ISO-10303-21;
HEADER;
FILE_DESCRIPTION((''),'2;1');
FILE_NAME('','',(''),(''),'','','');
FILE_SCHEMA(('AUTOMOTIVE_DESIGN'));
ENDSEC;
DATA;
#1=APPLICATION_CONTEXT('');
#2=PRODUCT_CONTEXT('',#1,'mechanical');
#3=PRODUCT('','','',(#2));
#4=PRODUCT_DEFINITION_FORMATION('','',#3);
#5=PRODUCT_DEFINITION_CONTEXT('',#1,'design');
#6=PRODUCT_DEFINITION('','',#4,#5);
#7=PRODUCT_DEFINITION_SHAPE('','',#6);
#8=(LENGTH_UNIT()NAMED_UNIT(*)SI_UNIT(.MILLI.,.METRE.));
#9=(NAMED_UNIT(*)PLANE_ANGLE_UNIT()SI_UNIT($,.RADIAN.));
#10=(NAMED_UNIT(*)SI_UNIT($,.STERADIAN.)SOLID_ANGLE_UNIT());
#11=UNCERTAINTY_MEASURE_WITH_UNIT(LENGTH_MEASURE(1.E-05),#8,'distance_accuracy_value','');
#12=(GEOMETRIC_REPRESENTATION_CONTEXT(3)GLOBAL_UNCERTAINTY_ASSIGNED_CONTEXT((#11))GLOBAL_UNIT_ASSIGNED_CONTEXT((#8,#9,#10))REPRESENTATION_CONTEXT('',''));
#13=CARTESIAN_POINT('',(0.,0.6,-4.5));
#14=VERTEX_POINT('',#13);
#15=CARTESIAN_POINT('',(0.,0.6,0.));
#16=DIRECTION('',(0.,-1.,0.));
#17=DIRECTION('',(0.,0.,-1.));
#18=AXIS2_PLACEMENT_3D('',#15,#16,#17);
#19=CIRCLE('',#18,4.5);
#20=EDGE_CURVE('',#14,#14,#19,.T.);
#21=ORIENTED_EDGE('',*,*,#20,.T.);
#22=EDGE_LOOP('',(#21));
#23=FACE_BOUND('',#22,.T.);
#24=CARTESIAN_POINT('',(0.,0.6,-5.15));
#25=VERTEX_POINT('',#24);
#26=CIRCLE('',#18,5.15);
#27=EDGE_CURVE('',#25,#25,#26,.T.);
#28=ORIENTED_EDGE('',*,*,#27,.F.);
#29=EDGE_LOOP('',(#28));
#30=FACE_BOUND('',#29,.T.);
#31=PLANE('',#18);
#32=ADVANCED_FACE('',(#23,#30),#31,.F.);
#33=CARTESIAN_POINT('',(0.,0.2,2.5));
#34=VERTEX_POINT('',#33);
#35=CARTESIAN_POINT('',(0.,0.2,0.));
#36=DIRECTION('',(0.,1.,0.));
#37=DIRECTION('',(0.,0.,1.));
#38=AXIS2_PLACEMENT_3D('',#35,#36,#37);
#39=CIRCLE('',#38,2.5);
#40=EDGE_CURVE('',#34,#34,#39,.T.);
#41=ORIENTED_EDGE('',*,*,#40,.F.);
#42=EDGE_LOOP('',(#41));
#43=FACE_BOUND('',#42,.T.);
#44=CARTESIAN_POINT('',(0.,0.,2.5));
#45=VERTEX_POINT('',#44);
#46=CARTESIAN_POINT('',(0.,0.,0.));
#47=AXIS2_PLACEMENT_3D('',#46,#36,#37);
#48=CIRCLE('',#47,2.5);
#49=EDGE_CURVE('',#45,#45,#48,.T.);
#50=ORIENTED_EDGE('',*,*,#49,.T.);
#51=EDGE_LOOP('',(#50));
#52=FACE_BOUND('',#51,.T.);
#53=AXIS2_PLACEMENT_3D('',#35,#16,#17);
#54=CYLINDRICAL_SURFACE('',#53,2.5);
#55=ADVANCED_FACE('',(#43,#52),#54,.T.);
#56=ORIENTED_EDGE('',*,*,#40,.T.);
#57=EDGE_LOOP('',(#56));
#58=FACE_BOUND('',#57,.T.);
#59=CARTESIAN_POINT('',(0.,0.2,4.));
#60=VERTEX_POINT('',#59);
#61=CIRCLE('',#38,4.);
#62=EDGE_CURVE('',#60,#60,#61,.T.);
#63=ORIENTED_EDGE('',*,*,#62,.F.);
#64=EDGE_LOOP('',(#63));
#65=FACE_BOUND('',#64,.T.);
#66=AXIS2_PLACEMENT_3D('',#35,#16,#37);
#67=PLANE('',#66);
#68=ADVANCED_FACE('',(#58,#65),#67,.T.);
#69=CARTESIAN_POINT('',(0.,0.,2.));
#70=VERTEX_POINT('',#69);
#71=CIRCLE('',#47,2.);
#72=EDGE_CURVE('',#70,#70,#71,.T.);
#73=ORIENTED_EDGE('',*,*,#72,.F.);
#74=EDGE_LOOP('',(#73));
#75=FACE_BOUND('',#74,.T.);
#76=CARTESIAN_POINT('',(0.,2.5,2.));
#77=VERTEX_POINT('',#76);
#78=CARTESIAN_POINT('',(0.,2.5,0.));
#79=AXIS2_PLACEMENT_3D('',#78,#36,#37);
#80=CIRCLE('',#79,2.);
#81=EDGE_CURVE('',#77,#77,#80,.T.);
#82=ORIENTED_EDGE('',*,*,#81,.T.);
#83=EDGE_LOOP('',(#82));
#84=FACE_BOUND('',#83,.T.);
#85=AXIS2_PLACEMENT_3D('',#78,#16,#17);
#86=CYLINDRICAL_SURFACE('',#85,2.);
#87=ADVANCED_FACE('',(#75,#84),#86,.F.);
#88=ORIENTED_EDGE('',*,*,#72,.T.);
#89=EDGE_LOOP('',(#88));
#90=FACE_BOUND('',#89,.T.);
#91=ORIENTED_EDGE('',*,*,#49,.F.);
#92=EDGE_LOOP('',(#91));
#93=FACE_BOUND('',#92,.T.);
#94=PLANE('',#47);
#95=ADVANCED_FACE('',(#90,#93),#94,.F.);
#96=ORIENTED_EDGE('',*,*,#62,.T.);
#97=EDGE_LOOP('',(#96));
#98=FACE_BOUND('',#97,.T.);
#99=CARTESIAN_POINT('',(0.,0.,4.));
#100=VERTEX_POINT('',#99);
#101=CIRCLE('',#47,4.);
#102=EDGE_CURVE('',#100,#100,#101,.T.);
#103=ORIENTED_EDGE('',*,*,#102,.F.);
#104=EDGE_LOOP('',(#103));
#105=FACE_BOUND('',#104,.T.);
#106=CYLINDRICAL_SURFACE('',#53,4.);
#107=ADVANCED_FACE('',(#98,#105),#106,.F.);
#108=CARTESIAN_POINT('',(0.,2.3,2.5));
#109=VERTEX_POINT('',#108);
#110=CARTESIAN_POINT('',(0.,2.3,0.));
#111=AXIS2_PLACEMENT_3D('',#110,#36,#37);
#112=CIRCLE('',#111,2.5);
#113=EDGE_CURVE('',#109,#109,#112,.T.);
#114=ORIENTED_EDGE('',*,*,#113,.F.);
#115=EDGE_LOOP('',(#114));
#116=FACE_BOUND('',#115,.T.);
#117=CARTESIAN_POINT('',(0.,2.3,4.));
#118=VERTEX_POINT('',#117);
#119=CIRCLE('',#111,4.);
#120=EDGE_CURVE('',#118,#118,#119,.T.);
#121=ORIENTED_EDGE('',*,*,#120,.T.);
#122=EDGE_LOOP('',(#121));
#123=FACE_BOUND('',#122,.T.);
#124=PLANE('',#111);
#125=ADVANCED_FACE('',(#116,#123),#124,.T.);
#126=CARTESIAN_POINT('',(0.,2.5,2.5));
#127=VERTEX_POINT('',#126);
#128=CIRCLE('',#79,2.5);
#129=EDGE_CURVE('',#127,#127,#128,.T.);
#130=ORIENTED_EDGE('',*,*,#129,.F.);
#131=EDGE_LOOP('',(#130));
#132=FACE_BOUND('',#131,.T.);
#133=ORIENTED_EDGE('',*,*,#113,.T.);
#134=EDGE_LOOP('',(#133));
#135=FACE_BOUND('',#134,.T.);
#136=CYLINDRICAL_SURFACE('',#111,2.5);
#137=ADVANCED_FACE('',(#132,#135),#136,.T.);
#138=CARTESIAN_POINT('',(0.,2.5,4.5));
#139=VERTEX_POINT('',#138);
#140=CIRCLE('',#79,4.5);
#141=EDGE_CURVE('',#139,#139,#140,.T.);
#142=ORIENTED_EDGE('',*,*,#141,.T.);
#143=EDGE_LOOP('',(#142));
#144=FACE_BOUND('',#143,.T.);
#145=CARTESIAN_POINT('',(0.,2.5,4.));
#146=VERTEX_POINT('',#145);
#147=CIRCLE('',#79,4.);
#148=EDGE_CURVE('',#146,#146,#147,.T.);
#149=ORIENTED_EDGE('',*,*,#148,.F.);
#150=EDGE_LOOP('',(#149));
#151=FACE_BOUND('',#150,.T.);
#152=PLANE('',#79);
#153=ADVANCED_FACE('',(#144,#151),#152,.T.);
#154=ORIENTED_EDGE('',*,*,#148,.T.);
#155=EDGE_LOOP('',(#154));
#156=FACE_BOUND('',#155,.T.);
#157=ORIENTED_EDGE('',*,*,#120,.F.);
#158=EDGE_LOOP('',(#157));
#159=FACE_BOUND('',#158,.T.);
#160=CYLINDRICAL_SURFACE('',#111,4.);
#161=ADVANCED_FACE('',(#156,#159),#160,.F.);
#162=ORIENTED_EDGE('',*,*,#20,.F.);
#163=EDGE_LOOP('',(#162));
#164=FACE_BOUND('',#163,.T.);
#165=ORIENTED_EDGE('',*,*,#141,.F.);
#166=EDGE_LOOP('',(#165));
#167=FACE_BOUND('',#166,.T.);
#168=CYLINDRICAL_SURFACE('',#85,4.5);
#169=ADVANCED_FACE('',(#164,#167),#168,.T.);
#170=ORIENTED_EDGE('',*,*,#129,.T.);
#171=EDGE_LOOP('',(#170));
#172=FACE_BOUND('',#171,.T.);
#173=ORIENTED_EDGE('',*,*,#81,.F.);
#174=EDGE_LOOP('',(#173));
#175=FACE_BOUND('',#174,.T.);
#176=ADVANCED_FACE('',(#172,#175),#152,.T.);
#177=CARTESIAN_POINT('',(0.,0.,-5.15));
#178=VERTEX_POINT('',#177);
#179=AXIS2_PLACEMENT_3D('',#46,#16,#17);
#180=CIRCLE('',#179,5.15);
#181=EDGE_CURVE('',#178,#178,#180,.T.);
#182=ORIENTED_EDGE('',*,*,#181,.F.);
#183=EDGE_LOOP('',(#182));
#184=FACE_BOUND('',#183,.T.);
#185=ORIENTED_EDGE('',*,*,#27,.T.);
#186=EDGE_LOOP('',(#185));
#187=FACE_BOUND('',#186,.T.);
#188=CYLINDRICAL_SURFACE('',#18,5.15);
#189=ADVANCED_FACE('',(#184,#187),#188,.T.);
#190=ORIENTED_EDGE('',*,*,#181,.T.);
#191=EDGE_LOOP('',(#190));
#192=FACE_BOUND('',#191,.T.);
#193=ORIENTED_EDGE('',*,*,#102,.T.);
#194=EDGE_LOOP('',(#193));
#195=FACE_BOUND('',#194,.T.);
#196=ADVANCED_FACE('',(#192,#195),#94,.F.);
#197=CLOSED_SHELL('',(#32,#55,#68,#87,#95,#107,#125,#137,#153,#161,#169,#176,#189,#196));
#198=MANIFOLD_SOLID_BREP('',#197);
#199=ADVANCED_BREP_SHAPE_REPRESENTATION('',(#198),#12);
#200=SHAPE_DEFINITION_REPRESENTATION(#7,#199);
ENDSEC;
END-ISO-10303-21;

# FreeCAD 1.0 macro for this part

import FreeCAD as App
import Part
import Sketcher
from FreeCAD import Vector

doc = App.newDocument("Part")
body = doc.addObject("PartDesign::Body", "Body")

# Sketch on XZ plane
sketch1 = doc.addObject("Sketcher::SketchObject", "Sketch")
body.addObject(sketch1)
sketch1.AttachmentSupport = (doc.XZ_Plane, [""])
sketch1.MapMode = "FlatFace"
sketch1.addGeometry(Part.Circle(Vector(0, 0, 0), Vector(0, 0, 1), 4.5), False)
sketch1.addGeometry(Part.Circle(Vector(0, 0, 0), Vector(0, 0, 1), 2), False)
sketch1.addConstraint(Sketcher.Constraint("Coincident", 0, 3, -1, 1))
sketch1.addConstraint(Sketcher.Constraint("Coincident", 1, 3, -1, 1))
sketch1.addConstraint(Sketcher.Constraint("Diameter", 0, 9.0))
sketch1.addConstraint(Sketcher.Constraint("Diameter", 1, 4.0))
pad1 = doc.addObject("PartDesign::Pad", "Pad")
body.addObject(pad1)
pad1.Profile = sketch1
pad1.Length = 2.5
pad1.Reversed = True

# Sketch on XZ plane
sketch2 = doc.addObject("Sketcher::SketchObject", "Sketch001")
body.addObject(sketch2)
sketch2.AttachmentSupport = (doc.XZ_Plane, [""])
sketch2.MapMode = "FlatFace"
sketch2.addGeometry(Part.Circle(Vector(0, 0, 0), Vector(0, 0, 1), 5.15), False)
sketch2.addGeometry(Part.Circle(Vector(0, 0, 0), Vector(0, 0, 1), 2), False)
sketch2.addConstraint(Sketcher.Constraint("Coincident", 0, 3, -1, 1))
sketch2.addConstraint(Sketcher.Constraint("Coincident", 1, 3, -1, 1))
sketch2.addConstraint(Sketcher.Constraint("Diameter", 1, 4.0))
sketch2.addConstraint(Sketcher.Constraint("Diameter", 0, 10.3))
pad2 = doc.addObject("PartDesign::Pad", "Pad001")
body.addObject(pad2)
pad2.Profile = sketch2
pad2.Length = 0.6
pad2.Reversed = True

# Sketch on XZ plane
sketch3 = doc.addObject("Sketcher::SketchObject", "Sketch002")
body.addObject(sketch3)
sketch3.AttachmentSupport = (doc.XZ_Plane, [""])
sketch3.MapMode = "FlatFace"
sketch3.AttachmentOffset = App.Placement(Vector(0, 0, -2.5), App.Rotation())
sketch3.addGeometry(Part.Circle(Vector(0, 0, 0), Vector(0, 0, 1), 4), False)
sketch3.addGeometry(Part.Circle(Vector(0, 0, 0), Vector(0, 0, 1), 2.5), False)
sketch3.addConstraint(Sketcher.Constraint("Coincident", 0, 3, -1, 1))
sketch3.addConstraint(Sketcher.Constraint("Coincident", 1, 3, -1, 1))
sketch3.addConstraint(Sketcher.Constraint("Diameter", 0, 8.0))
sketch3.addConstraint(Sketcher.Constraint("Diameter", 1, 5.0))
pocket1 = doc.addObject("PartDesign::Pocket", "Pocket")
body.addObject(pocket1)
pocket1.Profile = sketch3
pocket1.Length = 0.2
pocket1.Reversed = True
doc.recompute()

datumplane = doc.addObject("PartDesign::Plane", "DatumPlane")
body.addObject(datumplane)
datumplane.AttachmentSupport = (doc.XZ_Plane, [""])
datumplane.MapMode = "FlatFace"
datumplane.AttachmentOffset = App.Placement(Vector(0, 0, -1.25), App.Rotation())
mirrored = doc.addObject("PartDesign::Mirrored", "Mirrored")
body.addObject(mirrored)
mirrored.Originals = [pocket1]
mirrored.MirrorPlane = (datumplane, [""])
body.Tip = mirrored

doc.recompute()
